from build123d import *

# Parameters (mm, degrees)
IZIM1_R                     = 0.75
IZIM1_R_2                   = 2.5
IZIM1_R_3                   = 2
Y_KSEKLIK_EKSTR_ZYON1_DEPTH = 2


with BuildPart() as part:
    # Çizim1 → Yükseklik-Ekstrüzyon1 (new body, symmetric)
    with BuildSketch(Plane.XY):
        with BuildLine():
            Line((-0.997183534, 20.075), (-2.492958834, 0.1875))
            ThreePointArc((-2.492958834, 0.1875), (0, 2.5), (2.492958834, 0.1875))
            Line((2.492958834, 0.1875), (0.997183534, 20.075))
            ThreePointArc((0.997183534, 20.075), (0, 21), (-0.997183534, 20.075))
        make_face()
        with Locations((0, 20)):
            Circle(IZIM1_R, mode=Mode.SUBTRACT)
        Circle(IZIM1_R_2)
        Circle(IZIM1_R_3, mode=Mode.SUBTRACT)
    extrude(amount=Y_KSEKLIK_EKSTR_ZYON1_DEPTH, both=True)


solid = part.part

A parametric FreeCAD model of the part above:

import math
import FreeCAD as App
import Part
import Sketcher
Q = App.Units.Quantity

doc = App.newDocument("Part")
params = doc.addObject("Spreadsheet::Sheet", "Params")
for row, (alias, value) in enumerate([
    ("sketch1_diameter", "4 mm"),
    ("sketch1_radius", "1 mm"),
    ("sketch1_diameter2", "1.5 mm"),
    ("sketch1_radius2", "2.5 mm"),
    ("pad1_length", "4 mm"),
], start=1):
    params.set(f"A{row}", alias)
    params.set(f"B{row}", "=" + value)
    params.setAlias(f"B{row}", alias)

body = doc.addObject("PartDesign::Body", "Body")

# Sketch on XY plane
sketch1 = doc.addObject("Sketcher::SketchObject", "Sketch")
body.addObject(sketch1)
sketch1.AttachmentSupport = (doc.XY_Plane, [""])
sketch1.MapMode = "FlatFace"
sketch1.addGeometry(Part.LineSegment(App.Vector(-1, 20.1, 0), App.Vector(-2.5, 0.2, 0)), False)
sketch1.addGeometry(Part.ArcOfCircle(Part.Circle(App.Vector(0, 0, 0), App.Vector(0, 0, 1), 2.5), math.radians(176), math.radians(364)), False)
sketch1.addGeometry(Part.LineSegment(App.Vector(2.5, 0.2, 0), App.Vector(1, 20.1, 0)), False)
sketch1.addGeometry(Part.ArcOfCircle(Part.Circle(App.Vector(0, 20, 0), App.Vector(0, 0, 1), 1), math.radians(4), math.radians(176)), False)
sketch1.addGeometry(Part.Circle(App.Vector(0, 0, 0), App.Vector(0, 0, 1), 2), False)
sketch1.addGeometry(Part.Circle(App.Vector(0, 20, 0), App.Vector(0, 0, 1), 0.8), False)
sketch1.addConstraint(Sketcher.Constraint("Tangent", 0, 2, 1, 1))
sketch1.addConstraint(Sketcher.Constraint("Tangent", 1, 2, 2, 1))
sketch1.addConstraint(Sketcher.Constraint("Tangent", 2, 2, 3, 1))
sketch1.addConstraint(Sketcher.Constraint("Tangent", 3, 2, 0, 1))
sketch1.addConstraint(Sketcher.Constraint("Coincident", 1, 3, -1, 1))
sketch1.addConstraint(Sketcher.Constraint("Coincident", 4, 3, -1, 1))
sketch1.addConstraint(Sketcher.Constraint("Coincident", 5, 3, 3, 3))
sketch1.addConstraint(Sketcher.Constraint("PointOnObject", 3, 3, -2))
sketch1.addConstraint(Sketcher.Constraint("Diameter", 4, Q("4 mm")))
sketch1.addConstraint(Sketcher.Constraint("Radius", 3, Q("1 mm")))
sketch1.addConstraint(Sketcher.Constraint("Diameter", 5, Q("1.5 mm")))
sketch1.addConstraint(Sketcher.Constraint("Radius", 1, Q("2.5 mm")))
sketch1.addConstraint(Sketcher.Constraint("DistanceY", -1, 1, 3, 3, Q("20 mm")))
sketch1.setExpression("Constraints[8]", "Params.sketch1_diameter")
sketch1.setExpression("Constraints[9]", "Params.sketch1_radius")
sketch1.setExpression("Constraints[10]", "Params.sketch1_diameter2")
sketch1.setExpression("Constraints[11]", "Params.sketch1_radius2")
pad1 = doc.addObject("PartDesign::Pad", "Pad")
body.addObject(pad1)
pad1.Profile = sketch1
pad1.setExpression("Length", "Params.pad1_length")
pad1.Midplane = True

doc.recompute()
